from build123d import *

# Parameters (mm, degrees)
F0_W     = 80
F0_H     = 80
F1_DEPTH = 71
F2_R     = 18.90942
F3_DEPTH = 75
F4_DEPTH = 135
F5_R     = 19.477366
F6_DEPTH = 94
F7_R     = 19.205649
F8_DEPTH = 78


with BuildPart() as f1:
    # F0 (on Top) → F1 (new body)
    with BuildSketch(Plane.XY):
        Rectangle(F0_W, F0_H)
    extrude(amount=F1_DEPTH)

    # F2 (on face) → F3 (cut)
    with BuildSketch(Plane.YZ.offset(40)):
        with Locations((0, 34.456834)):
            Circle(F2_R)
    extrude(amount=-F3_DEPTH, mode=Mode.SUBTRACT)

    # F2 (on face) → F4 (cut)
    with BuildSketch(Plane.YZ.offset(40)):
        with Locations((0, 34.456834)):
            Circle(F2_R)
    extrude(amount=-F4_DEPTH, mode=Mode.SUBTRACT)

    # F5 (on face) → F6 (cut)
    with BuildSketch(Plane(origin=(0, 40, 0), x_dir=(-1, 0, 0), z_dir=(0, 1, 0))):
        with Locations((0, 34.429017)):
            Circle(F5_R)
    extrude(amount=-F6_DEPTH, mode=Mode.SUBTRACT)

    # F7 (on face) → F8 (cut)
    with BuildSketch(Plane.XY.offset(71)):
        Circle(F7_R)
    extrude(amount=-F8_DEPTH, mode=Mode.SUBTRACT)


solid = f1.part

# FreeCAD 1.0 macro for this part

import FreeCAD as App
import Part
import Sketcher

doc = App.newDocument("Part")
body = doc.addObject("PartDesign::Body", "Body")

sketch1 = body.newObject("Sketcher::SketchObject", "Sketch")
sketch1.AttachmentSupport = (doc.getObject("XY_Plane"), [""])
sketch1.MapMode = "FlatFace"
sketch1.addGeometry(Part.LineSegment(App.Vector(-40, 40, 0), App.Vector(-40, -40, 0)), False)
sketch1.addGeometry(Part.LineSegment(App.Vector(-40, -40, 0), App.Vector(40, -40, 0)), False)
sketch1.addGeometry(Part.LineSegment(App.Vector(40, -40, 0), App.Vector(40, 40, 0)), False)
sketch1.addGeometry(Part.LineSegment(App.Vector(40, 40, 0), App.Vector(-40, 40, 0)), False)
sketch1.addConstraint(Sketcher.Constraint("Coincident", 0, 2, 1, 1))
sketch1.addConstraint(Sketcher.Constraint("Coincident", 1, 2, 2, 1))
sketch1.addConstraint(Sketcher.Constraint("Coincident", 2, 2, 3, 1))
sketch1.addConstraint(Sketcher.Constraint("Coincident", 3, 2, 0, 1))
sketch1.addConstraint(Sketcher.Constraint("Vertical", 0))
sketch1.addConstraint(Sketcher.Constraint("Horizontal", 1))
sketch1.addConstraint(Sketcher.Constraint("Vertical", 2))
sketch1.addConstraint(Sketcher.Constraint("Horizontal", 3))
sketch1.addConstraint(Sketcher.Constraint("Symmetric", 0, 2, 2, 2, -1, 1))
sketch1.addConstraint(Sketcher.Constraint("Equal", 3, 0))
sketch1.addConstraint(Sketcher.Constraint("DistanceX", 1, 1, 1, 2, 80.0))
pad1 = body.newObject("PartDesign::Pad", "Pad")
pad1.Profile = sketch1
pad1.Length = 71

sketch2 = body.newObject("Sketcher::SketchObject", "Sketch001")
sketch2.AttachmentSupport = (doc.getObject("YZ_Plane"), [""])
sketch2.MapMode = "FlatFace"
sketch2.AttachmentOffset = App.Placement(App.Vector(0, 0, 40), App.Rotation())
sketch2.addGeometry(Part.Circle(App.Vector(0, 34, 0), App.Vector(0, 0, 1), 19), False)
sketch2.addConstraint(Sketcher.Constraint("PointOnObject", 0, 3, -2))
sketch2.addConstraint(Sketcher.Constraint("Diameter", 0, 37.81884))
sketch2.addConstraint(Sketcher.Constraint("DistanceY", -1, 1, 0, 3, 34.456834))
pocket1 = body.newObject("PartDesign::Pocket", "Pocket")
pocket1.Profile = sketch2
pocket1.Length = 75

sketch3 = body.newObject("Sketcher::SketchObject", "Sketch002")
sketch3.AttachmentSupport = (doc.getObject("YZ_Plane"), [""])
sketch3.MapMode = "FlatFace"
sketch3.AttachmentOffset = App.Placement(App.Vector(0, 0, 40), App.Rotation())
sketch3.addGeometry(Part.Circle(App.Vector(0, 34, 0), App.Vector(0, 0, 1), 19), False)
sketch3.addConstraint(Sketcher.Constraint("PointOnObject", 0, 3, -2))
sketch3.addConstraint(Sketcher.Constraint("Diameter", 0, 37.81884))
sketch3.addConstraint(Sketcher.Constraint("DistanceY", -1, 1, 0, 3, 34.456834))
pocket2 = body.newObject("PartDesign::Pocket", "Pocket001")
pocket2.Profile = sketch3
pocket2.Length = 135

sketch4 = body.newObject("Sketcher::SketchObject", "Sketch003")
sketch4.AttachmentSupport = (doc.getObject("XZ_Plane"), [""])
sketch4.MapMode = "FlatFace"
sketch4.AttachmentOffset = App.Placement(App.Vector(0, 0, -40), App.Rotation())
sketch4.addGeometry(Part.Circle(App.Vector(0, 34, 0), App.Vector(0, 0, 1), 19), False)
sketch4.addConstraint(Sketcher.Constraint("PointOnObject", 0, 3, -2))
sketch4.addConstraint(Sketcher.Constraint("Diameter", 0, 38.954732))
sketch4.addConstraint(Sketcher.Constraint("DistanceY", -1, 1, 0, 3, 34.429017))
pocket3 = body.newObject("PartDesign::Pocket", "Pocket002")
pocket3.Profile = sketch4
pocket3.Length = 94
pocket3.Reversed = True

sketch5 = body.newObject("Sketcher::SketchObject", "Sketch004")
sketch5.AttachmentSupport = (doc.getObject("XY_Plane"), [""])
sketch5.MapMode = "FlatFace"
sketch5.AttachmentOffset = App.Placement(App.Vector(0, 0, 71), App.Rotation())
sketch5.addGeometry(Part.Circle(App.Vector(0, 0, 0), App.Vector(0, 0, 1), 19), False)
sketch5.addConstraint(Sketcher.Constraint("Coincident", 0, 3, -1, 1))
sketch5.addConstraint(Sketcher.Constraint("Diameter", 0, 38.411298))
pocket4 = body.newObject("PartDesign::Pocket", "Pocket003")
pocket4.Profile = sketch5
pocket4.Length = 78

doc.recompute()
